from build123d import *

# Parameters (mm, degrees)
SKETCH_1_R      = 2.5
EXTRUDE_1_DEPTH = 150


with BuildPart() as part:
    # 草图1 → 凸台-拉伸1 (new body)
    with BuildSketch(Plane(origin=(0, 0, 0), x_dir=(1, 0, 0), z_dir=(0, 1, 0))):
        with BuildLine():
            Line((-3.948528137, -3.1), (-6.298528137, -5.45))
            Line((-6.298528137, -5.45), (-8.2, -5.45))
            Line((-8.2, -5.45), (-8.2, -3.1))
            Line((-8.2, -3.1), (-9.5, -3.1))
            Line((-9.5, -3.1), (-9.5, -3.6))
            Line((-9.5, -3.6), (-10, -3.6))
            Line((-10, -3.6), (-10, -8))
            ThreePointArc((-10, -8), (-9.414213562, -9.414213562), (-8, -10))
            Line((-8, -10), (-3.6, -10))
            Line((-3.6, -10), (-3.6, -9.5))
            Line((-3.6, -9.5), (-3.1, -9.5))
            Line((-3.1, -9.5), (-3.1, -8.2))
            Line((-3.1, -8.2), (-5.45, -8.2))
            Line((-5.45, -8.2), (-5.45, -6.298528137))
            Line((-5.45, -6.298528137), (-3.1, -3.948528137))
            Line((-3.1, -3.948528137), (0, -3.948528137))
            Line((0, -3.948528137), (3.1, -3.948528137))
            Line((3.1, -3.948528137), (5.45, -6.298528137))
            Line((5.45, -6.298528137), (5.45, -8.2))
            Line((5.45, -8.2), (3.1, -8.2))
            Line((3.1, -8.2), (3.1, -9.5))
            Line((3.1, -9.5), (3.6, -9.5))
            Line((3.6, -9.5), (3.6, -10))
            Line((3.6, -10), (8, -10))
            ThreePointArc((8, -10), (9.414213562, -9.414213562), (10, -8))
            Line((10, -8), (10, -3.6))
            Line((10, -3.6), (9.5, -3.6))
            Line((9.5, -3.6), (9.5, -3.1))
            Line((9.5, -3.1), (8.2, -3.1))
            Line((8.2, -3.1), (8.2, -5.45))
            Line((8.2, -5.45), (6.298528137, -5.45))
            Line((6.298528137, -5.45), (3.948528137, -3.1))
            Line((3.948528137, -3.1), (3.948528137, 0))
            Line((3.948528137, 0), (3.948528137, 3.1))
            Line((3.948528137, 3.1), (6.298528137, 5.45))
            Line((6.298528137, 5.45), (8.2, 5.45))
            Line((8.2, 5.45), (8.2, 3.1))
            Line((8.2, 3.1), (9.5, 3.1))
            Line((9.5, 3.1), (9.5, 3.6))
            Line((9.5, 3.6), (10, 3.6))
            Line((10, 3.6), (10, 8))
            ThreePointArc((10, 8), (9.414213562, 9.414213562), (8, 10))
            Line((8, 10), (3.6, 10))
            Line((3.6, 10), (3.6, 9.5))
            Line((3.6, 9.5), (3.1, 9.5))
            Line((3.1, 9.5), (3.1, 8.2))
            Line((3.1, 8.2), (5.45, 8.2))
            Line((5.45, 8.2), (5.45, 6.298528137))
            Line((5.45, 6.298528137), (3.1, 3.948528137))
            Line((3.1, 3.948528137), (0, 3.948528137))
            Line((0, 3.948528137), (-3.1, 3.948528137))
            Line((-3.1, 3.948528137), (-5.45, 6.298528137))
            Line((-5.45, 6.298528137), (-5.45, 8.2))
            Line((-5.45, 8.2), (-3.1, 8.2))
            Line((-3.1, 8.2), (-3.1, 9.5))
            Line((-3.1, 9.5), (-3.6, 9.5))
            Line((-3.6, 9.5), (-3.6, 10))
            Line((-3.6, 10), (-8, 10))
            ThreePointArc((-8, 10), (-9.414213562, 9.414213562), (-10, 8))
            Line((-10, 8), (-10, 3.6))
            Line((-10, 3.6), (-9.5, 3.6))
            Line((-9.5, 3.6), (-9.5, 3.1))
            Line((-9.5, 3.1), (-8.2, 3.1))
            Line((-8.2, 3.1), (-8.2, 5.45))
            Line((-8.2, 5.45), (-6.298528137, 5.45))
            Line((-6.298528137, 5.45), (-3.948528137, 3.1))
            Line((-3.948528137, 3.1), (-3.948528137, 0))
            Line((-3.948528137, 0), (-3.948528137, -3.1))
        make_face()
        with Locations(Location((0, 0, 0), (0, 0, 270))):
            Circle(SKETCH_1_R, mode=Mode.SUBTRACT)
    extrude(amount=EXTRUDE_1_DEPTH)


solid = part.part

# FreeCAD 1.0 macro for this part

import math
import FreeCAD as App
import Part
import Sketcher
Q = App.Units.Quantity

doc = App.newDocument("Part")
body = doc.addObject("PartDesign::Body", "Body")

# Sketch on XZ plane
sketch1 = doc.addObject("Sketcher::SketchObject", "Sketch")
body.addObject(sketch1)
sketch1.AttachmentSupport = (doc.XZ_Plane, [""])
sketch1.MapMode = "FlatFace"
sketch1.addGeometry([
    Part.LineSegment(App.Vector(-3.9, 3.1, 0), App.Vector(-6.3, 5.5, 0)),  # 0
    Part.LineSegment(App.Vector(-6.3, 5.5, 0), App.Vector(-8.2, 5.5, 0)),  # 1
    Part.LineSegment(App.Vector(-8.2, 5.5, 0), App.Vector(-8.2, 3.1, 0)),  # 2
    Part.LineSegment(App.Vector(-8.2, 3.1, 0), App.Vector(-9.5, 3.1, 0)),  # 3
    Part.LineSegment(App.Vector(-9.5, 3.1, 0), App.Vector(-9.5, 3.6, 0)),  # 4
    Part.LineSegment(App.Vector(-9.5, 3.6, 0), App.Vector(-10, 3.6, 0)),  # 5
    Part.LineSegment(App.Vector(-10, 3.6, 0), App.Vector(-10, 8, 0)),  # 6
    Part.ArcOfCircle(Part.Circle(App.Vector(-8, 8, 0), App.Vector(0, 0, 1), 2), math.radians(90), math.radians(180)),  # 7
    Part.LineSegment(App.Vector(-8, 10, 0), App.Vector(-3.6, 10, 0)),  # 8
    Part.LineSegment(App.Vector(-3.6, 10, 0), App.Vector(-3.6, 9.5, 0)),  # 9
    Part.LineSegment(App.Vector(-3.6, 9.5, 0), App.Vector(-3.1, 9.5, 0)),  # 10
    Part.LineSegment(App.Vector(-3.1, 9.5, 0), App.Vector(-3.1, 8.2, 0)),  # 11
    Part.LineSegment(App.Vector(-3.1, 8.2, 0), App.Vector(-5.5, 8.2, 0)),  # 12
    Part.LineSegment(App.Vector(-5.5, 8.2, 0), App.Vector(-5.5, 6.3, 0)),  # 13
    Part.LineSegment(App.Vector(-5.5, 6.3, 0), App.Vector(-3.1, 3.9, 0)),  # 14
    Part.LineSegment(App.Vector(-3.1, 3.9, 0), App.Vector(3.1, 3.9, 0)),  # 15
    Part.LineSegment(App.Vector(3.1, 3.9, 0), App.Vector(5.5, 6.3, 0)),  # 16
    Part.LineSegment(App.Vector(5.5, 6.3, 0), App.Vector(5.5, 8.2, 0)),  # 17
    Part.LineSegment(App.Vector(5.5, 8.2, 0), App.Vector(3.1, 8.2, 0)),  # 18
    Part.LineSegment(App.Vector(3.1, 8.2, 0), App.Vector(3.1, 9.5, 0)),  # 19
    Part.LineSegment(App.Vector(3.1, 9.5, 0), App.Vector(3.6, 9.5, 0)),  # 20
    Part.LineSegment(App.Vector(3.6, 9.5, 0), App.Vector(3.6, 10, 0)),  # 21
    Part.LineSegment(App.Vector(3.6, 10, 0), App.Vector(8, 10, 0)),  # 22
    Part.ArcOfCircle(Part.Circle(App.Vector(8, 8, 0), App.Vector(0, 0, 1), 2), math.radians(0), math.radians(90)),  # 23
    Part.LineSegment(App.Vector(10, 8, 0), App.Vector(10, 3.6, 0)),  # 24
    Part.LineSegment(App.Vector(10, 3.6, 0), App.Vector(9.5, 3.6, 0)),  # 25
    Part.LineSegment(App.Vector(9.5, 3.6, 0), App.Vector(9.5, 3.1, 0)),  # 26
    Part.LineSegment(App.Vector(9.5, 3.1, 0), App.Vector(8.2, 3.1, 0)),  # 27
    Part.LineSegment(App.Vector(8.2, 3.1, 0), App.Vector(8.2, 5.5, 0)),  # 28
    Part.LineSegment(App.Vector(8.2, 5.5, 0), App.Vector(6.3, 5.5, 0)),  # 29
    Part.LineSegment(App.Vector(6.3, 5.5, 0), App.Vector(3.9, 3.1, 0)),  # 30
    Part.LineSegment(App.Vector(3.9, 3.1, 0), App.Vector(3.9, -3.1, 0)),  # 31
    Part.LineSegment(App.Vector(3.9, -3.1, 0), App.Vector(6.3, -5.5, 0)),  # 32
    Part.LineSegment(App.Vector(6.3, -5.5, 0), App.Vector(8.2, -5.5, 0)),  # 33
    Part.LineSegment(App.Vector(8.2, -5.5, 0), App.Vector(8.2, -3.1, 0)),  # 34
    Part.LineSegment(App.Vector(8.2, -3.1, 0), App.Vector(9.5, -3.1, 0)),  # 35
    Part.LineSegment(App.Vector(9.5, -3.1, 0), App.Vector(9.5, -3.6, 0)),  # 36
    Part.LineSegment(App.Vector(9.5, -3.6, 0), App.Vector(10, -3.6, 0)),  # 37
    Part.LineSegment(App.Vector(10, -3.6, 0), App.Vector(10, -8, 0)),  # 38
    Part.ArcOfCircle(Part.Circle(App.Vector(8, -8, 0), App.Vector(0, 0, 1), 2), math.radians(-90), math.radians(0)),  # 39
    Part.LineSegment(App.Vector(8, -10, 0), App.Vector(3.6, -10, 0)),  # 40
    Part.LineSegment(App.Vector(3.6, -10, 0), App.Vector(3.6, -9.5, 0)),  # 41
    Part.LineSegment(App.Vector(3.6, -9.5, 0), App.Vector(3.1, -9.5, 0)),  # 42
    Part.LineSegment(App.Vector(3.1, -9.5, 0), App.Vector(3.1, -8.2, 0)),  # 43
    Part.LineSegment(App.Vector(3.1, -8.2, 0), App.Vector(5.5, -8.2, 0)),  # 44
    Part.LineSegment(App.Vector(5.5, -8.2, 0), App.Vector(5.5, -6.3, 0)),  # 45
    Part.LineSegment(App.Vector(5.5, -6.3, 0), App.Vector(3.1, -3.9, 0)),  # 46
    Part.LineSegment(App.Vector(3.1, -3.9, 0), App.Vector(-3.1, -3.9, 0)),  # 47
    Part.LineSegment(App.Vector(-3.1, -3.9, 0), App.Vector(-5.5, -6.3, 0)),  # 48
    Part.LineSegment(App.Vector(-5.5, -6.3, 0), App.Vector(-5.5, -8.2, 0)),  # 49
    Part.LineSegment(App.Vector(-5.5, -8.2, 0), App.Vector(-3.1, -8.2, 0)),  # 50
    Part.LineSegment(App.Vector(-3.1, -8.2, 0), App.Vector(-3.1, -9.5, 0)),  # 51
    Part.LineSegment(App.Vector(-3.1, -9.5, 0), App.Vector(-3.6, -9.5, 0)),  # 52
    Part.LineSegment(App.Vector(-3.6, -9.5, 0), App.Vector(-3.6, -10, 0)),  # 53
    Part.LineSegment(App.Vector(-3.6, -10, 0), App.Vector(-8, -10, 0)),  # 54
    Part.ArcOfCircle(Part.Circle(App.Vector(-8, -8, 0), App.Vector(0, 0, 1), 2), math.radians(-180), math.radians(-90)),  # 55
    Part.LineSegment(App.Vector(-10, -8, 0), App.Vector(-10, -3.6, 0)),  # 56
    Part.LineSegment(App.Vector(-10, -3.6, 0), App.Vector(-9.5, -3.6, 0)),  # 57
    Part.LineSegment(App.Vector(-9.5, -3.6, 0), App.Vector(-9.5, -3.1, 0)),  # 58
    Part.LineSegment(App.Vector(-9.5, -3.1, 0), App.Vector(-8.2, -3.1, 0)),  # 59
    Part.LineSegment(App.Vector(-8.2, -3.1, 0), App.Vector(-8.2, -5.5, 0)),  # 60
    Part.LineSegment(App.Vector(-8.2, -5.5, 0), App.Vector(-6.3, -5.5, 0)),  # 61
    Part.LineSegment(App.Vector(-6.3, -5.5, 0), App.Vector(-3.9, -3.1, 0)),  # 62
    Part.LineSegment(App.Vector(-3.9, -3.1, 0), App.Vector(-3.9, 3.1, 0)),  # 63
    Part.Circle(App.Vector(0, 0, 0), App.Vector(0, 0, 1), 2.5),  # 64
], False)
sketch1.addConstraint([
    Sketcher.Constraint("Coincident", 0, 2, 1, 1),
    Sketcher.Constraint("Coincident", 1, 2, 2, 1),
    Sketcher.Constraint("Coincident", 2, 2, 3, 1),
    Sketcher.Constraint("Coincident", 3, 2, 4, 1),
    Sketcher.Constraint("Coincident", 4, 2, 5, 1),
    Sketcher.Constraint("Coincident", 5, 2, 6, 1),
    Sketcher.Constraint("Tangent", 6, 2, 7, 2),
    Sketcher.Constraint("Tangent", 7, 1, 8, 1),
    Sketcher.Constraint("Coincident", 8, 2, 9, 1),
    Sketcher.Constraint("Coincident", 9, 2, 10, 1),
    Sketcher.Constraint("Coincident", 10, 2, 11, 1),
    Sketcher.Constraint("Coincident", 11, 2, 12, 1),
    Sketcher.Constraint("Coincident", 12, 2, 13, 1),
    Sketcher.Constraint("Coincident", 13, 2, 14, 1),
    Sketcher.Constraint("Coincident", 14, 2, 15, 1),
    Sketcher.Constraint("Coincident", 15, 2, 16, 1),
    Sketcher.Constraint("Coincident", 16, 2, 17, 1),
    Sketcher.Constraint("Coincident", 17, 2, 18, 1),
    Sketcher.Constraint("Coincident", 18, 2, 19, 1),
    Sketcher.Constraint("Coincident", 19, 2, 20, 1),
    Sketcher.Constraint("Coincident", 20, 2, 21, 1),
    Sketcher.Constraint("Coincident", 21, 2, 22, 1),
    Sketcher.Constraint("Tangent", 22, 2, 23, 2),
    Sketcher.Constraint("Tangent", 23, 1, 24, 1),
    Sketcher.Constraint("Coincident", 24, 2, 25, 1),
    Sketcher.Constraint("Coincident", 25, 2, 26, 1),
    Sketcher.Constraint("Coincident", 26, 2, 27, 1),
    Sketcher.Constraint("Coincident", 27, 2, 28, 1),
    Sketcher.Constraint("Coincident", 28, 2, 29, 1),
    Sketcher.Constraint("Coincident", 29, 2, 30, 1),
    Sketcher.Constraint("Coincident", 30, 2, 31, 1),
    Sketcher.Constraint("Coincident", 31, 2, 32, 1),
    Sketcher.Constraint("Coincident", 32, 2, 33, 1),
    Sketcher.Constraint("Coincident", 33, 2, 34, 1),
    Sketcher.Constraint("Coincident", 34, 2, 35, 1),
    Sketcher.Constraint("Coincident", 35, 2, 36, 1),
    Sketcher.Constraint("Coincident", 36, 2, 37, 1),
    Sketcher.Constraint("Coincident", 37, 2, 38, 1),
    Sketcher.Constraint("Tangent", 38, 2, 39, 2),
    Sketcher.Constraint("Tangent", 39, 1, 40, 1),
    Sketcher.Constraint("Coincident", 40, 2, 41, 1),
    Sketcher.Constraint("Coincident", 41, 2, 42, 1),
    Sketcher.Constraint("Coincident", 42, 2, 43, 1),
    Sketcher.Constraint("Coincident", 43, 2, 44, 1),
    Sketcher.Constraint("Coincident", 44, 2, 45, 1),
    Sketcher.Constraint("Coincident", 45, 2, 46, 1),
    Sketcher.Constraint("Coincident", 46, 2, 47, 1),
    Sketcher.Constraint("Coincident", 47, 2, 48, 1),
    Sketcher.Constraint("Coincident", 48, 2, 49, 1),
    Sketcher.Constraint("Coincident", 49, 2, 50, 1),
    Sketcher.Constraint("Coincident", 50, 2, 51, 1),
    Sketcher.Constraint("Coincident", 51, 2, 52, 1),
    Sketcher.Constraint("Coincident", 52, 2, 53, 1),
    Sketcher.Constraint("Coincident", 53, 2, 54, 1),
    Sketcher.Constraint("Tangent", 54, 2, 55, 2),
    Sketcher.Constraint("Tangent", 55, 1, 56, 1),
    Sketcher.Constraint("Coincident", 56, 2, 57, 1),
    Sketcher.Constraint("Coincident", 57, 2, 58, 1),
    Sketcher.Constraint("Coincident", 58, 2, 59, 1),
    Sketcher.Constraint("Coincident", 59, 2, 60, 1),
    Sketcher.Constraint("Coincident", 60, 2, 61, 1),
    Sketcher.Constraint("Coincident", 61, 2, 62, 1),
    Sketcher.Constraint("Coincident", 62, 2, 63, 1),
    Sketcher.Constraint("Coincident", 63, 2, 0, 1),
    Sketcher.Constraint("Horizontal", 1),
    Sketcher.Constraint("Vertical", 2),
    Sketcher.Constraint("Horizontal", 3),
    Sketcher.Constraint("Vertical", 4),
    Sketcher.Constraint("Horizontal", 5),
    Sketcher.Constraint("Vertical", 6),
    Sketcher.Constraint("Horizontal", 8),
    Sketcher.Constraint("Vertical", 9),
    Sketcher.Constraint("Horizontal", 10),
    Sketcher.Constraint("Vertical", 11),
    Sketcher.Constraint("Horizontal", 12),
    Sketcher.Constraint("Vertical", 13),
    Sketcher.Constraint("Horizontal", 15),
    Sketcher.Constraint("Vertical", 17),
    Sketcher.Constraint("Horizontal", 18),
    Sketcher.Constraint("Vertical", 19),
    Sketcher.Constraint("Horizontal", 20),
    Sketcher.Constraint("Vertical", 21),
    Sketcher.Constraint("Horizontal", 22),
    Sketcher.Constraint("Vertical", 24),
    Sketcher.Constraint("Horizontal", 25),
    Sketcher.Constraint("Vertical", 26),
    Sketcher.Constraint("Horizontal", 27),
    Sketcher.Constraint("Vertical", 28),
    Sketcher.Constraint("Horizontal", 29),
    Sketcher.Constraint("Vertical", 31),
    Sketcher.Constraint("Horizontal", 33),
    Sketcher.Constraint("Vertical", 34),
    Sketcher.Constraint("Horizontal", 35),
    Sketcher.Constraint("Vertical", 36),
    Sketcher.Constraint("Horizontal", 37),
    Sketcher.Constraint("Vertical", 38),
    Sketcher.Constraint("Horizontal", 40),
    Sketcher.Constraint("Vertical", 41),
    Sketcher.Constraint("Horizontal", 42),
    Sketcher.Constraint("Vertical", 43),
    Sketcher.Constraint("Horizontal", 44),
    Sketcher.Constraint("Vertical", 45),
    Sketcher.Constraint("Horizontal", 47),
    Sketcher.Constraint("Vertical", 49),
    Sketcher.Constraint("Horizontal", 50),
    Sketcher.Constraint("Vertical", 51),
    Sketcher.Constraint("Horizontal", 52),
    Sketcher.Constraint("Vertical", 53),
    Sketcher.Constraint("Horizontal", 54),
    Sketcher.Constraint("Vertical", 56),
    Sketcher.Constraint("Horizontal", 57),
    Sketcher.Constraint("Vertical", 58),
    Sketcher.Constraint("Horizontal", 59),
    Sketcher.Constraint("Vertical", 60),
    Sketcher.Constraint("Horizontal", 61),
    Sketcher.Constraint("Vertical", 63),
    Sketcher.Constraint("Coincident", 64, 3, -1, 1),
    Sketcher.Constraint("Equal", 7, 23),
    Sketcher.Constraint("Equal", 23, 39),
    Sketcher.Constraint("Equal", 39, 55),
    Sketcher.Constraint("Symmetric", 7, 3, 39, 3, -1, 1),
    Sketcher.Constraint("Symmetric", 23, 3, 55, 3, -1, 1),
    Sketcher.Constraint("Symmetric", 0, 2, 32, 2, -1, 1),
    Sketcher.Constraint("Symmetric", 2, 2, 34, 2, -1, 1),
    Sketcher.Constraint("Symmetric", 4, 2, 36, 2, -1, 1),
    Sketcher.Constraint("Symmetric", 9, 2, 41, 2, -1, 1),
    Sketcher.Constraint("Symmetric", 11, 2, 43, 2, -1, 1),
    Sketcher.Constraint("Symmetric", 13, 2, 45, 2, -1, 1),
    Sketcher.Constraint("Symmetric", 14, 2, 46, 2, -1, 1),
    Sketcher.Constraint("Symmetric", 16, 2, 48, 2, -1, 1),
    Sketcher.Constraint("Symmetric", 18, 2, 50, 2, -1, 1),
    Sketcher.Constraint("Symmetric", 20, 2, 52, 2, -1, 1),
    Sketcher.Constraint("Symmetric", 25, 2, 57, 2, -1, 1),
    Sketcher.Constraint("Symmetric", 27, 2, 59, 2, -1, 1),
    Sketcher.Constraint("Symmetric", 29, 2, 61, 2, -1, 1),
    Sketcher.Constraint("Symmetric", 30, 2, 62, 2, -1, 1),
    Sketcher.Constraint("Symmetric", 7, 3, 23, 3, -2),
    Sketcher.Constraint("Symmetric", 13, 2, 16, 2, -2),
    Sketcher.Constraint("Symmetric", 11, 2, 18, 2, -2),
    Sketcher.Constraint("Symmetric", 9, 2, 20, 2, -2),
    Sketcher.Constraint("Symmetric", 4, 2, 25, 2, -2),
    Sketcher.Constraint("Symmetric", 2, 2, 27, 2, -2),
    Sketcher.Constraint("Symmetric", 0, 2, 29, 2, -2),
    Sketcher.Constraint("Parallel", 0, 14),
    Sketcher.Constraint("Perpendicular", 14, 16),
    Sketcher.Constraint("Parallel", 16, 30),
    Sketcher.Constraint("Perpendicular", 30, 32),
    Sketcher.Constraint("Perpendicular", 46, 48),
    Sketcher.Constraint("Horizontal", 27, 2, 30, 2),
    Sketcher.Constraint("Horizontal", 31, 2, 34, 2),
    Sketcher.Constraint("Vertical", 11, 2, 14, 2),
    Sketcher.Constraint("Equal", 5, 10),
    Sketcher.Constraint("Equal", 50, 2),
    Sketcher.Constraint("Equal", 57, 4),
    Sketcher.Constraint("Equal", 54, 6),
    Sketcher.Constraint("Equal", 4, 9),
    Sketcher.Constraint("Equal", 59, 11),
    Sketcher.Constraint("Equal", 61, 13),
    Sketcher.Constraint("Equal", 47, 31),
    Sketcher.Constraint("Diameter", 64, Q("5 mm")),
    Sketcher.Constraint("Radius", 7, Q("2 mm")),
    Sketcher.Constraint("DistanceX", 3, 2, 3, 1, Q("1.3 mm")),
    Sketcher.Constraint("DistanceX", 5, 2, 5, 1, Q("0.5 mm")),
    Sketcher.Constraint("DistanceX", 8, 1, 8, 2, Q("4.4 mm")),
    Sketcher.Constraint("DistanceX", 15, 1, 15, 2, Q("6.2 mm")),
    Sketcher.Constraint("DistanceX", 12, 2, 12, 1, Q("2.35 mm")),
    Sketcher.Constraint("DistanceX", 1, 2, 1, 1, Q("1.901472 mm")),
])
pad1 = doc.addObject("PartDesign::Pad", "Pad")
body.addObject(pad1)
pad1.Profile = sketch1
pad1.Length = 150
pad1.Reversed = True

doc.recompute()
